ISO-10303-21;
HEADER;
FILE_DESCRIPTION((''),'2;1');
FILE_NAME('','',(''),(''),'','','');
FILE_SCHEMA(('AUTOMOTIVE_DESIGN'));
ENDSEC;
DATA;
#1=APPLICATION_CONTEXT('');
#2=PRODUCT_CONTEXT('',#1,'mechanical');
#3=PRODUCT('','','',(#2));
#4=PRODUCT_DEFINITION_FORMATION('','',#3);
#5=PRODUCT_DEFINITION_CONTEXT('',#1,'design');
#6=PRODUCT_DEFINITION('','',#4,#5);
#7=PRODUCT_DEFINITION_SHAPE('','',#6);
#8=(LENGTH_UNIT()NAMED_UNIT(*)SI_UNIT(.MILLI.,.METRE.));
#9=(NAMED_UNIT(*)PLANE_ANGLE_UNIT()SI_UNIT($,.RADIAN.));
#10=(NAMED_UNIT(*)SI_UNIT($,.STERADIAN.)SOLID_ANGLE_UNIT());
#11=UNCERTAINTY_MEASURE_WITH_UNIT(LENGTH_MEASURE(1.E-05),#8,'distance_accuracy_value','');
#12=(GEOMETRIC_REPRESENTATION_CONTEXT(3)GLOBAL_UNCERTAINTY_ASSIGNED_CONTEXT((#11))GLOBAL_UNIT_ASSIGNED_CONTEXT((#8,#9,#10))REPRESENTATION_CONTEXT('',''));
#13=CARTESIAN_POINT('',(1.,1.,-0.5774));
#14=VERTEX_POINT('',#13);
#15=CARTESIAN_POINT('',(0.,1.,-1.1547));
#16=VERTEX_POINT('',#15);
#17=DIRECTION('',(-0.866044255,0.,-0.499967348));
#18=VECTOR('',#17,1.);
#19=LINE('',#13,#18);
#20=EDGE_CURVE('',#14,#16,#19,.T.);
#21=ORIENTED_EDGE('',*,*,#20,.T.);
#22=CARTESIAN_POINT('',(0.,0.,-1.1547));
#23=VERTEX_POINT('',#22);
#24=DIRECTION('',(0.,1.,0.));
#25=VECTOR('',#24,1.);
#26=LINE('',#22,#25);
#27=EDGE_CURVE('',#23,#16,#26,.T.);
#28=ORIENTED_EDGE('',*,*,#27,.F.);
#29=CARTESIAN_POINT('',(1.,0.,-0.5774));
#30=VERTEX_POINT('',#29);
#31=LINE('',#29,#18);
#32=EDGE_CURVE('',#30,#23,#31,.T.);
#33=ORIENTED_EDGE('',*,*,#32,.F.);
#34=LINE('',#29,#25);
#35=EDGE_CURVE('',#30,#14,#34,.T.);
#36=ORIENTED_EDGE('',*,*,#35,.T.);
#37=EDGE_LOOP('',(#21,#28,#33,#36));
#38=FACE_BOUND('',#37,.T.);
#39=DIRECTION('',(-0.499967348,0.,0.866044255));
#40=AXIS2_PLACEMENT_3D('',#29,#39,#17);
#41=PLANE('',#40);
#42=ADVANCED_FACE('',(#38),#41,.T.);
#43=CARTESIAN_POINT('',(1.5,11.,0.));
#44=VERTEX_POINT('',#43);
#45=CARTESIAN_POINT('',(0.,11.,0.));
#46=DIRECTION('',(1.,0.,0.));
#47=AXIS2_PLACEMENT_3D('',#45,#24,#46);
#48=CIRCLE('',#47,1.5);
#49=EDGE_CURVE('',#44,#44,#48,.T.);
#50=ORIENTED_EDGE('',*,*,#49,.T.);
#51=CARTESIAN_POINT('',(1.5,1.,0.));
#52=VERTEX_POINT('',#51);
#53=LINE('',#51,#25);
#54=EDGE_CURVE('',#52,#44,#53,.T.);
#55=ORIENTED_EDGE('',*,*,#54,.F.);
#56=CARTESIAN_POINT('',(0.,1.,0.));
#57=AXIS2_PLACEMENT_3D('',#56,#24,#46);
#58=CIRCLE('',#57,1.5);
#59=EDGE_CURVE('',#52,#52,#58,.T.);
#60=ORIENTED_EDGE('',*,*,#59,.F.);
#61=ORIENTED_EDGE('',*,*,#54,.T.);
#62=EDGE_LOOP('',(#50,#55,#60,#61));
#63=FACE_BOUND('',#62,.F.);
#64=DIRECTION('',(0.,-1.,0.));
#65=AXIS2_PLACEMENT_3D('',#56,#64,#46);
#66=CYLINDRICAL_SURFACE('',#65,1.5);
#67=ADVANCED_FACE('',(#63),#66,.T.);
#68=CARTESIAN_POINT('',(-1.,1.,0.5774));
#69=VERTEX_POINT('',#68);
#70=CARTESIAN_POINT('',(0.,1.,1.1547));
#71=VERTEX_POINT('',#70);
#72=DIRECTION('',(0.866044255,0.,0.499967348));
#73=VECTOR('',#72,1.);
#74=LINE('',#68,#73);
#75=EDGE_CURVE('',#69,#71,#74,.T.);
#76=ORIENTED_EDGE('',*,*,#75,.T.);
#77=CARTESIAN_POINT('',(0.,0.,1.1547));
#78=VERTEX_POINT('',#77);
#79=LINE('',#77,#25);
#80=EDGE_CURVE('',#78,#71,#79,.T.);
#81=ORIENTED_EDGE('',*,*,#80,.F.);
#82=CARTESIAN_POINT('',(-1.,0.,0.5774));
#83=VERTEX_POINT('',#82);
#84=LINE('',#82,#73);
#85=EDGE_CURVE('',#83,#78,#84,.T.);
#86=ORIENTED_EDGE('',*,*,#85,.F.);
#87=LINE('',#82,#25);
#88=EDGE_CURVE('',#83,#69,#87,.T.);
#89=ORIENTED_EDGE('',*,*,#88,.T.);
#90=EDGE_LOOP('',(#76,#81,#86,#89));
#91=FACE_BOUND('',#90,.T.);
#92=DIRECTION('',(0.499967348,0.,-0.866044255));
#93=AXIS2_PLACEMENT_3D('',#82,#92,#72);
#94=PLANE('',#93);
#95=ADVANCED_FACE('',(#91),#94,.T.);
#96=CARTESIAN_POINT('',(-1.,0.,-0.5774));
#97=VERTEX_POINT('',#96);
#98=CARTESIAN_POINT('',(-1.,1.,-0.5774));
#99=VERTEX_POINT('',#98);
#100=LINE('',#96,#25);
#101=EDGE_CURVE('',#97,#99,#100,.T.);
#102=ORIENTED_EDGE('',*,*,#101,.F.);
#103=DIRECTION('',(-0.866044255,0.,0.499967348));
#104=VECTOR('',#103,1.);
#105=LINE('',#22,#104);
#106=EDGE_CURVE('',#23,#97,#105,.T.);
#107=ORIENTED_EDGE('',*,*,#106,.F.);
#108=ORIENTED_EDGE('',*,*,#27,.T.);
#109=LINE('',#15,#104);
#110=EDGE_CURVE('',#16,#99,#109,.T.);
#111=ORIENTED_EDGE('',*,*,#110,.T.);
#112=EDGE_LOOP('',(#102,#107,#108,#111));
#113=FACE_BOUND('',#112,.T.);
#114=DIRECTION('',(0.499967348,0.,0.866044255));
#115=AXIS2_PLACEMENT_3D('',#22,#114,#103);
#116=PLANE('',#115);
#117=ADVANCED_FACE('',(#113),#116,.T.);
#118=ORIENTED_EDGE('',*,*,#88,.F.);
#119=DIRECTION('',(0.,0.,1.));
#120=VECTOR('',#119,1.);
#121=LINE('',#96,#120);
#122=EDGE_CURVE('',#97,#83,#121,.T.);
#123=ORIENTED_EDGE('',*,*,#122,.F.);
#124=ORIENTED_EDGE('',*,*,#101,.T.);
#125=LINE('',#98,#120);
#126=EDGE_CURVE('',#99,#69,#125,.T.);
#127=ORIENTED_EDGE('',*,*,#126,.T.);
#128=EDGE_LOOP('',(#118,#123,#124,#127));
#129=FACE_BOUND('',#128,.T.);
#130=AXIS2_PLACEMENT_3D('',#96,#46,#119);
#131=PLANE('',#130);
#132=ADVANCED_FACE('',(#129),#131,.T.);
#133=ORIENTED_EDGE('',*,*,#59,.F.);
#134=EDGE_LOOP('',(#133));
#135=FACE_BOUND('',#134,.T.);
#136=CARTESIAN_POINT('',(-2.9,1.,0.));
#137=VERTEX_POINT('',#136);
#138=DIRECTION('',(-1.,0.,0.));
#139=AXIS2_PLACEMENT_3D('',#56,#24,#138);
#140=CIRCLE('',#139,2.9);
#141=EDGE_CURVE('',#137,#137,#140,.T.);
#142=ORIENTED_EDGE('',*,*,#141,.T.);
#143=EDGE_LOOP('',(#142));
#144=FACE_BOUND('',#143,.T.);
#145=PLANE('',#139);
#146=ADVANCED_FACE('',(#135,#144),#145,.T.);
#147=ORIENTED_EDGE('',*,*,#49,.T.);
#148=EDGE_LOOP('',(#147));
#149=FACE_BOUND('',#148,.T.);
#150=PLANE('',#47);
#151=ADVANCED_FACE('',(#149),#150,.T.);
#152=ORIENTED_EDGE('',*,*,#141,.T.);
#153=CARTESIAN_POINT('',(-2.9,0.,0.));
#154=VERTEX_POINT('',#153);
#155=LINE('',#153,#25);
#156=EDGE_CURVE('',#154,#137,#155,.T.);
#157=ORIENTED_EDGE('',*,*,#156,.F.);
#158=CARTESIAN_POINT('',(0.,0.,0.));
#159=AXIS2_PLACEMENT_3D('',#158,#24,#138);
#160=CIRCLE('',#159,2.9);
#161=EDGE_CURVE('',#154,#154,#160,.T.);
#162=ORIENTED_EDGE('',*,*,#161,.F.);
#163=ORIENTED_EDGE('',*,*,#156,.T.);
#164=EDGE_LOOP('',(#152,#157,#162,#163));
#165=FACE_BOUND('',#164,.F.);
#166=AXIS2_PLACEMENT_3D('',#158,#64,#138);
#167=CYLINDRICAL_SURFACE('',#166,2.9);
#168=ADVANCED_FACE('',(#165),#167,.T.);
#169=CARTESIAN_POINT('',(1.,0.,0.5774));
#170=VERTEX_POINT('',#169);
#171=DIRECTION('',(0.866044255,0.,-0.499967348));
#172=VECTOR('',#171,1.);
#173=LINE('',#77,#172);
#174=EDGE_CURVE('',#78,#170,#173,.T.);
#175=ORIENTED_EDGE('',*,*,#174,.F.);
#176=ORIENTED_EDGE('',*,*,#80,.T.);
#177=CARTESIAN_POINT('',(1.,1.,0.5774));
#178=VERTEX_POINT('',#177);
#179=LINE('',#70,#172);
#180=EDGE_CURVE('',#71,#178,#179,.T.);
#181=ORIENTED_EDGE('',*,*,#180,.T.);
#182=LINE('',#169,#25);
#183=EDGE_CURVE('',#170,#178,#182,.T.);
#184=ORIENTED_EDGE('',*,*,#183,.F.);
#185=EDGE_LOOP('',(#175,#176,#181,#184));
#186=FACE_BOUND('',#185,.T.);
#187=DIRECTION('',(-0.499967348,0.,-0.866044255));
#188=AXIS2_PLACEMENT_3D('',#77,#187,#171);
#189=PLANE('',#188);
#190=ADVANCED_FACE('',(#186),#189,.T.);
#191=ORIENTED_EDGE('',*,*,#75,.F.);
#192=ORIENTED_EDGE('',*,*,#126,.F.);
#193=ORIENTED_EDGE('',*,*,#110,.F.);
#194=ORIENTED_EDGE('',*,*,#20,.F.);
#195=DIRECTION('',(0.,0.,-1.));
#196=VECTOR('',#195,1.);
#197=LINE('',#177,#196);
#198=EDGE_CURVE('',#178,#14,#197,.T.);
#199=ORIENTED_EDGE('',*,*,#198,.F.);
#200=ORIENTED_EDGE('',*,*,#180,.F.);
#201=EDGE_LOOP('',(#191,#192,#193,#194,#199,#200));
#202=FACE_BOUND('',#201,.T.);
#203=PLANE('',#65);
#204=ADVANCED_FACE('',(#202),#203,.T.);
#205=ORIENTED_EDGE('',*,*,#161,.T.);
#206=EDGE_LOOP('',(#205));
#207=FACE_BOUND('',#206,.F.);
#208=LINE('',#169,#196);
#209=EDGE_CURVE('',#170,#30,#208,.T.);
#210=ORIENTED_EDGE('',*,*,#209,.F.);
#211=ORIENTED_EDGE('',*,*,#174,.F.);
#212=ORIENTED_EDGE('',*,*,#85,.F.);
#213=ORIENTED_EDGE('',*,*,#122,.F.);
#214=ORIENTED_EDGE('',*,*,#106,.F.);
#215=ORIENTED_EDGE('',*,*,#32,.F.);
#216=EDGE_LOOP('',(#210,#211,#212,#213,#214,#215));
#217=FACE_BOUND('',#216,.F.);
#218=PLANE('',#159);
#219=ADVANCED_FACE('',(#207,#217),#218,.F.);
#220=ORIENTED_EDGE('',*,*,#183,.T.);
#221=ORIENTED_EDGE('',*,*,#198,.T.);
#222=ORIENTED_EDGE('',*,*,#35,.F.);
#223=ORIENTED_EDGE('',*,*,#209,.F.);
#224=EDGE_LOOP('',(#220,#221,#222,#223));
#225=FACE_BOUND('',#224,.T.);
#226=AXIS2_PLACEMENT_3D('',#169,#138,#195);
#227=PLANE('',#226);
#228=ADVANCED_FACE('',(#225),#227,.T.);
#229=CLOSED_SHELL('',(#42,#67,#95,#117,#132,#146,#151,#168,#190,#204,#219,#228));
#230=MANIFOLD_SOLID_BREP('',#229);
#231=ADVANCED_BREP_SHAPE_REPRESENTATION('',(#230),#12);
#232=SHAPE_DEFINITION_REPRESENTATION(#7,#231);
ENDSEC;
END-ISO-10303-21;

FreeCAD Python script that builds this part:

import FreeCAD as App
import Part
import Sketcher
from FreeCAD import Vector
Q = App.Units.Quantity

doc = App.newDocument("Part")
body = doc.addObject("PartDesign::Body", "Body")

# Sketch on XZ plane
sketch1 = body.newObject("Sketcher::SketchObject", "Sketch")
sketch1.AttachmentSupport = (doc.getObject("XZ_Plane"), [""])
sketch1.MapMode = "FlatFace"
sketch1.addGeometry(Part.Circle(Vector(0, 0, 0), Vector(0, 0, 1), 2.9), False)
sketch1.addConstraint(Sketcher.Constraint("Coincident", 0, 3, -1, 1))
sketch1.addConstraint(Sketcher.Constraint("Diameter", 0, Q("5.8 mm")))
pad1 = body.newObject("PartDesign::Pad", "Pad")
pad1.Profile = sketch1
pad1.Length = 1
pad1.Reversed = True

# Sketch on XZ plane
sketch2 = body.newObject("Sketcher::SketchObject", "Sketch001")
sketch2.AttachmentSupport = (doc.getObject("XZ_Plane"), [""])
sketch2.MapMode = "FlatFace"
sketch2.AttachmentOffset = App.Placement(Vector(0, 0, -1), App.Rotation())
sketch2.addGeometry(Part.Circle(Vector(0, 0, 0), Vector(0, 0, 1), 1.5), False)
sketch2.addConstraint(Sketcher.Constraint("Coincident", 0, 3, -1, 1))
sketch2.addConstraint(Sketcher.Constraint("Diameter", 0, Q("3 mm")))
pad2 = body.newObject("PartDesign::Pad", "Pad001")
pad2.Profile = sketch2
pad2.Length = 10
pad2.Reversed = True

# Sketch on XZ plane
sketch3 = body.newObject("Sketcher::SketchObject", "Sketch002")
sketch3.AttachmentSupport = (doc.getObject("XZ_Plane"), [""])
sketch3.MapMode = "FlatFace"
sketch3.addGeometry(Part.LineSegment(Vector(-1, -0.5774, 0), Vector(0, -1.1547, 0)), False)
sketch3.addGeometry(Part.LineSegment(Vector(0, -1.1547, 0), Vector(1, -0.5774, 0)), False)
sketch3.addGeometry(Part.LineSegment(Vector(1, -0.5774, 0), Vector(1, 0.5774, 0)), False)
sketch3.addGeometry(Part.LineSegment(Vector(1, 0.5774, 0), Vector(0, 1.1547, 0)), False)
sketch3.addGeometry(Part.LineSegment(Vector(0, 1.1547, 0), Vector(-1, 0.5774, 0)), False)
sketch3.addGeometry(Part.LineSegment(Vector(-1, 0.5774, 0), Vector(-1, -0.5774, 0)), False)
sketch3.addConstraint(Sketcher.Constraint("Coincident", 0, 2, 1, 1))
sketch3.addConstraint(Sketcher.Constraint("Coincident", 1, 2, 2, 1))
sketch3.addConstraint(Sketcher.Constraint("Coincident", 2, 2, 3, 1))
sketch3.addConstraint(Sketcher.Constraint("Coincident", 3, 2, 4, 1))
sketch3.addConstraint(Sketcher.Constraint("Coincident", 4, 2, 5, 1))
sketch3.addConstraint(Sketcher.Constraint("Coincident", 5, 2, 0, 1))
sketch3.addConstraint(Sketcher.Constraint("Vertical", 2))
sketch3.addConstraint(Sketcher.Constraint("Vertical", 5))
sketch3.addConstraint(Sketcher.Constraint("Symmetric", 0, 2, 3, 2, -1, 1))
sketch3.addConstraint(Sketcher.Constraint("Symmetric", 1, 2, 4, 2, -1, 1))
sketch3.addConstraint(Sketcher.Constraint("PointOnObject", 0, 2, -2))
sketch3.addConstraint(Sketcher.Constraint("Parallel", 0, 3))
sketch3.addConstraint(Sketcher.Constraint("Horizontal", 2, 2, 4, 2))
sketch3.addConstraint(Sketcher.Constraint("DistanceX", 4, 2, 2, 2, Q("2 mm")))
sketch3.addConstraint(Sketcher.Constraint("DistanceY", 2, 1, 2, 2, Q("1.1548 mm")))
sketch3.addConstraint(Sketcher.Constraint("DistanceY", 0, 2, 2, 2, Q("1.732 mm")))
pocket1 = body.newObject("PartDesign::Pocket", "Pocket")
pocket1.Profile = sketch3
pocket1.Length = 1

doc.recompute()
